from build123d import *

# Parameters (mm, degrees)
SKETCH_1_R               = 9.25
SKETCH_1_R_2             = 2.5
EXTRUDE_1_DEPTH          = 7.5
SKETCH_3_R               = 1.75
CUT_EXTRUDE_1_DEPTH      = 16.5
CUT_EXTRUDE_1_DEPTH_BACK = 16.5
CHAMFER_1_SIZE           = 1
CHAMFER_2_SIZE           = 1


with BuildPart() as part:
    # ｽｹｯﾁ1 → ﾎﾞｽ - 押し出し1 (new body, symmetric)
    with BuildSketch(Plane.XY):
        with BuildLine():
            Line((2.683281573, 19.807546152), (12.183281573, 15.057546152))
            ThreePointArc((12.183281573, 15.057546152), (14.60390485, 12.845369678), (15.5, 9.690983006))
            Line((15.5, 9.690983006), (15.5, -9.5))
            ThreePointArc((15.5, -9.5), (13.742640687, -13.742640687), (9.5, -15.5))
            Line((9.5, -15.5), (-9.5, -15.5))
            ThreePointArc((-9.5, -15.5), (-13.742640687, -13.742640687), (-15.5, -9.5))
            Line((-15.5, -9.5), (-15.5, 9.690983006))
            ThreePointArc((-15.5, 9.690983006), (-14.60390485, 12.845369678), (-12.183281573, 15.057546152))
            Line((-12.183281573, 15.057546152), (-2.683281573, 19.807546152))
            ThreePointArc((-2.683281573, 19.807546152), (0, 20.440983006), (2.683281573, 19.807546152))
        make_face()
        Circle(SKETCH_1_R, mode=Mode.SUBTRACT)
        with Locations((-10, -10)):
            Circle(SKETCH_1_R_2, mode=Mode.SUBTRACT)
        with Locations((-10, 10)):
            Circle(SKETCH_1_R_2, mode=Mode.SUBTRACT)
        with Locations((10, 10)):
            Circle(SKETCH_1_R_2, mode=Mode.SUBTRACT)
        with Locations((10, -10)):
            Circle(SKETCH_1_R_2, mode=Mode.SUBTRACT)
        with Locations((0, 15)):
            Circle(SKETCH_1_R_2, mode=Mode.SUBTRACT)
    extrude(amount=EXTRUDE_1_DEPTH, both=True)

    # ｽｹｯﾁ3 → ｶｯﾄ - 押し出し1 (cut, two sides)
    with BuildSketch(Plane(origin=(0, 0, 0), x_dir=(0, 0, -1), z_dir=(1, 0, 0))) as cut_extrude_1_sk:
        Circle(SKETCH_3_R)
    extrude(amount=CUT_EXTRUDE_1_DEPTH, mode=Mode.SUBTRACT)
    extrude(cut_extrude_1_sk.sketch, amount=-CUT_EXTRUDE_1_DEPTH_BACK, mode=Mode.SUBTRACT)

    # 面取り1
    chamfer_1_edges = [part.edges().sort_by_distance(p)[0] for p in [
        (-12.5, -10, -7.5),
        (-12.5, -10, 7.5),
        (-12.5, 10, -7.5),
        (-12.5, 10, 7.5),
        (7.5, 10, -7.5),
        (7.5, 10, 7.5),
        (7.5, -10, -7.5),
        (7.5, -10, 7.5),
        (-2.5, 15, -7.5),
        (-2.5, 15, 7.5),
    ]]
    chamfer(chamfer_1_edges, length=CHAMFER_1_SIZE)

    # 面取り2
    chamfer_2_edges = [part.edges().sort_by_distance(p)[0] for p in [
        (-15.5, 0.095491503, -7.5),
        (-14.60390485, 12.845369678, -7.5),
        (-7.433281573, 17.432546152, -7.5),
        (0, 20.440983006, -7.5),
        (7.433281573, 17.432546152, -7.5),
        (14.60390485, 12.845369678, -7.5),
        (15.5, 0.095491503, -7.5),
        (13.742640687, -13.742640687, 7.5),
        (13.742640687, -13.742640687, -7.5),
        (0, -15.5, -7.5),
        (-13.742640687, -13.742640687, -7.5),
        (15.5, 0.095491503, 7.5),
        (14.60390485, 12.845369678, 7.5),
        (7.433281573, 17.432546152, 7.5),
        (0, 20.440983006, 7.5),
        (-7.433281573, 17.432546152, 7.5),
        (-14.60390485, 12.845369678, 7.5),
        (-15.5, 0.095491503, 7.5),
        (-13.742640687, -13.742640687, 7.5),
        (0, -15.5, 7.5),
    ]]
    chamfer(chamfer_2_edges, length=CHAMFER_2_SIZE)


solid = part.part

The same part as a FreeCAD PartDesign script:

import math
import FreeCAD as App
import Part
import Sketcher
Q = App.Units.Quantity


def edges_at(feature, points):
    """Names of the edges that pass closest to the given points."""
    edges = feature.Shape.Edges
    near = lambda p: min(range(len(edges)), key=lambda i: edges[i].distToShape(Part.Vertex(*p))[0])
    return sorted({f"Edge{near(p) + 1}" for p in points})

doc = App.newDocument("Part")
body = doc.addObject("PartDesign::Body", "Body")

# Sketch on XY plane
sketch1 = body.newObject("Sketcher::SketchObject", "Sketch")
sketch1.AttachmentSupport = (doc.getObject("XY_Plane"), [""])
sketch1.MapMode = "FlatFace"
sketch1.addGeometry([
    Part.LineSegment(App.Vector(12.2, 15.1, 0), App.Vector(2.7, 19.8, 0)),  # 0
    Part.ArcOfCircle(Part.Circle(App.Vector(0, 14.4, 0), App.Vector(0, 0, 1), 6), math.radians(63), math.radians(117)),  # 1
    Part.LineSegment(App.Vector(-2.7, 19.8, 0), App.Vector(-12.2, 15.1, 0)),  # 2
    Part.ArcOfCircle(Part.Circle(App.Vector(-9.5, 9.7, 0), App.Vector(0, 0, 1), 6), math.radians(117), math.radians(180)),  # 3
    Part.LineSegment(App.Vector(-15.5, 9.7, 0), App.Vector(-15.5, -9.5, 0)),  # 4
    Part.ArcOfCircle(Part.Circle(App.Vector(-9.5, -9.5, 0), App.Vector(0, 0, 1), 6), math.radians(180), math.radians(270)),  # 5
    Part.LineSegment(App.Vector(-9.5, -15.5, 0), App.Vector(9.5, -15.5, 0)),  # 6
    Part.ArcOfCircle(Part.Circle(App.Vector(9.5, -9.5, 0), App.Vector(0, 0, 1), 6), math.radians(-90), math.radians(0)),  # 7
    Part.LineSegment(App.Vector(15.5, -9.5, 0), App.Vector(15.5, 9.7, 0)),  # 8
    Part.ArcOfCircle(Part.Circle(App.Vector(9.5, 9.7, 0), App.Vector(0, 0, 1), 6), math.radians(0), math.radians(63)),  # 9
    Part.Circle(App.Vector(10, -10, 0), App.Vector(0, 0, 1), 2.5),  # 10
    Part.Circle(App.Vector(-10, -10, 0), App.Vector(0, 0, 1), 2.5),  # 11
    Part.Circle(App.Vector(0, 0, 0), App.Vector(0, 0, 1), 9.2),  # 12
    Part.Circle(App.Vector(10, 10, 0), App.Vector(0, 0, 1), 2.5),  # 13
    Part.Circle(App.Vector(0, 15, 0), App.Vector(0, 0, 1), 2.5),  # 14
    Part.Circle(App.Vector(-10, 10, 0), App.Vector(0, 0, 1), 2.5),  # 15
], False)
sketch1.addConstraint([
    Sketcher.Constraint("Tangent", 0, 2, 1, 1),
    Sketcher.Constraint("Tangent", 1, 2, 2, 1),
    Sketcher.Constraint("Tangent", 2, 2, 3, 1),
    Sketcher.Constraint("Tangent", 3, 2, 4, 1),
    Sketcher.Constraint("Tangent", 4, 2, 5, 1),
    Sketcher.Constraint("Tangent", 5, 2, 6, 1),
    Sketcher.Constraint("Tangent", 6, 2, 7, 1),
    Sketcher.Constraint("Tangent", 7, 2, 8, 1),
    Sketcher.Constraint("Tangent", 8, 2, 9, 1),
    Sketcher.Constraint("Tangent", 9, 2, 0, 1),
    Sketcher.Constraint("Vertical", 4),
    Sketcher.Constraint("Horizontal", 6),
    Sketcher.Constraint("Vertical", 8),
    Sketcher.Constraint("Coincident", 12, 3, -1, 1),
    Sketcher.Constraint("Equal", 1, 3),
    Sketcher.Constraint("Equal", 3, 5),
    Sketcher.Constraint("Equal", 5, 7),
    Sketcher.Constraint("Equal", 7, 9),
    Sketcher.Constraint("Equal", 10, 11),
    Sketcher.Constraint("Equal", 11, 13),
    Sketcher.Constraint("Equal", 13, 14),
    Sketcher.Constraint("Equal", 14, 15),
    Sketcher.Constraint("Symmetric", 11, 3, 13, 3, -1, 1),
    Sketcher.Constraint("Symmetric", 10, 3, 15, 3, -1, 1),
    Sketcher.Constraint("Symmetric", 3, 3, 9, 3, -2),
    Sketcher.Constraint("Symmetric", 10, 3, 11, 3, -2),
    Sketcher.Constraint("PointOnObject", 1, 3, -2),
    Sketcher.Constraint("PointOnObject", 14, 3, -2),
    Sketcher.Constraint("Diameter", 10, Q("5 mm")),
    Sketcher.Constraint("Radius", 1, Q("6 mm")),
    Sketcher.Constraint("Diameter", 12, Q("18.5 mm")),
    Sketcher.Constraint("DistanceX", 6, 1, 6, 2, Q("19 mm")),
    Sketcher.Constraint("DistanceX", -1, 1, 10, 3, Q("10 mm")),
    Sketcher.Constraint("DistanceY", 10, 3, -1, 1, Q("10 mm")),
    Sketcher.Constraint("DistanceY", -1, 1, 14, 3, Q("15 mm")),
    Sketcher.Constraint("DistanceY", 5, 3, -1, 1, Q("9.5 mm")),
    Sketcher.Constraint("DistanceY", 3, 3, 1, 3, Q("4.75 mm")),
    Sketcher.Constraint("DistanceY", 4, 2, 4, 1, Q("19.190983 mm")),
])
pad1 = body.newObject("PartDesign::Pad", "Pad")
pad1.Profile = sketch1
pad1.Length = 15
pad1.Midplane = True

# Sketch on YZ plane
sketch2 = body.newObject("Sketcher::SketchObject", "Sketch001")
sketch2.AttachmentSupport = (doc.getObject("YZ_Plane"), [""])
sketch2.MapMode = "FlatFace"
sketch2.addGeometry(Part.Circle(App.Vector(0, 0, 0), App.Vector(0, 0, 1), 1.8), False)
sketch2.addConstraint([
    Sketcher.Constraint("Coincident", 0, 3, -1, 1),
    Sketcher.Constraint("Diameter", 0, Q("3.5 mm")),
])
pocket1 = body.newObject("PartDesign::Pocket", "Pocket")
pocket1.Profile = sketch2
pocket1.Type = "ThroughAll"
pocket1.Midplane = True
doc.recompute()

chamfer = body.newObject("PartDesign::Chamfer", "Chamfer")
chamfer.Base = (pocket1, edges_at(pocket1, [
    (-12.5, -10, -7.5),
    (-12.5, -10, 7.5),
    (-12.5, 10, -7.5),
    (-12.5, 10, 7.5),
    (7.5, 10, -7.5),
    (7.5, 10, 7.5),
    (7.5, -10, -7.5),
    (7.5, -10, 7.5),
    (-2.5, 15, -7.5),
    (-2.5, 15, 7.5),
]))
chamfer.Size = 1
doc.recompute()

chamfer2 = body.newObject("PartDesign::Chamfer", "Chamfer001")
chamfer2.Base = (chamfer, edges_at(chamfer, [
    (-15.5, 0.095, -7.5),
    (-14.604, 12.845, -7.5),
    (-7.433, 17.433, -7.5),
    (0, 20.441, -7.5),
    (7.433, 17.433, -7.5),
    (14.604, 12.845, -7.5),
    (15.5, 0.095, -7.5),
    (13.743, -13.743, 7.5),
    (13.743, -13.743, -7.5),
    (0, -15.5, -7.5),
    (-13.743, -13.743, -7.5),
    (15.5, 0.095, 7.5),
    (14.604, 12.845, 7.5),
    (7.433, 17.433, 7.5),
    (0, 20.441, 7.5),
    (-7.433, 17.433, 7.5),
    (-14.604, 12.845, 7.5),
    (-15.5, 0.095, 7.5),
    (-13.743, -13.743, 7.5),
    (0, -15.5, 7.5),
]))
chamfer2.Size = 1

doc.recompute()
